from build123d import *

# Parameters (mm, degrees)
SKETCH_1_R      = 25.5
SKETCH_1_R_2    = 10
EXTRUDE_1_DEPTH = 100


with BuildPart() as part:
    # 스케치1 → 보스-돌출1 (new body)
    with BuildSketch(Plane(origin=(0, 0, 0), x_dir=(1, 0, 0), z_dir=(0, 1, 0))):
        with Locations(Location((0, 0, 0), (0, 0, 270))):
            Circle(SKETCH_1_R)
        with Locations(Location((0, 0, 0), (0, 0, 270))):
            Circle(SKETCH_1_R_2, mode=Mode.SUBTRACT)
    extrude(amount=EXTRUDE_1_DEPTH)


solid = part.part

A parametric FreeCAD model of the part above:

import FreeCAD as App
import Part
import Sketcher
from FreeCAD import Vector
Q = App.Units.Quantity

doc = App.newDocument("Part")
body = doc.addObject("PartDesign::Body", "Body")

# Sketch on XZ plane
sketch1 = doc.addObject("Sketcher::SketchObject", "Sketch")
body.addObject(sketch1)
sketch1.AttachmentSupport = (doc.XZ_Plane, [""])
sketch1.MapMode = "FlatFace"
sketch1.addGeometry([
    Part.Circle(Vector(0, 0, 0), Vector(0, 0, 1), 25.5),
    Part.Circle(Vector(0, 0, 0), Vector(0, 0, 1), 10),
], False)
sketch1.addConstraint([
    Sketcher.Constraint("Coincident", 0, 3, -1, 1),
    Sketcher.Constraint("Coincident", 1, 3, -1, 1),
    Sketcher.Constraint("Diameter", 0, Q("51 mm")),
    Sketcher.Constraint("Diameter", 1, Q("20 mm")),
])
pad1 = doc.addObject("PartDesign::Pad", "Pad")
body.addObject(pad1)
pad1.Profile = sketch1
pad1.Length = 100
pad1.Reversed = True

doc.recompute()
